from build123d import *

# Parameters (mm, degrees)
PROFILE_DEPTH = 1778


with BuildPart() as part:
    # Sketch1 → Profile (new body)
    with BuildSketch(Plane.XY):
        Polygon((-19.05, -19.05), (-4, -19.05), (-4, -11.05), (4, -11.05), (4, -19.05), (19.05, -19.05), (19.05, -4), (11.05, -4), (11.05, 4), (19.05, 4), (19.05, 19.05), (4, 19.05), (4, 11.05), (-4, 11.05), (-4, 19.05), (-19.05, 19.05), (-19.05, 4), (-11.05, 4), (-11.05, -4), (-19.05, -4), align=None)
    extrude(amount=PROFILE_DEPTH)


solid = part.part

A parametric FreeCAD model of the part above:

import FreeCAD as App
import Part
import Sketcher

V = App.Vector

doc = App.newDocument("Part")
params = doc.addObject("Spreadsheet::Sheet", "Params")
for row, (alias, value) in enumerate([
    ("sketch1_width", "8 mm"),
    ("sketch1_width2", "15.05 mm"),
    ("pad1_length", "1778 mm"),
], start=1):
    params.set(f"A{row}", alias)
    params.set(f"B{row}", "=" + value)
    params.setAlias(f"B{row}", alias)

body = doc.addObject("PartDesign::Body", "Body")

sketch1 = body.newObject("Sketcher::SketchObject", "Sketch")
sketch1.AttachmentSupport = (doc.getObject("XY_Plane"), [""])
sketch1.MapMode = "FlatFace"
sketch1.addGeometry([
    Part.LineSegment(V(-19.05, -19.05, 0), V(-4, -19.05, 0)),
    Part.LineSegment(V(-4, -19.05, 0), V(-4, -11.05, 0)),
    Part.LineSegment(V(-4, -11.05, 0), V(4, -11.05, 0)),
    Part.LineSegment(V(4, -11.05, 0), V(4, -19.05, 0)),
    Part.LineSegment(V(4, -19.05, 0), V(19.05, -19.05, 0)),
    Part.LineSegment(V(19.05, -19.05, 0), V(19.05, -4, 0)),
    Part.LineSegment(V(19.05, -4, 0), V(11.05, -4, 0)),
    Part.LineSegment(V(11.05, -4, 0), V(11.05, 4, 0)),
    Part.LineSegment(V(11.05, 4, 0), V(19.05, 4, 0)),
    Part.LineSegment(V(19.05, 4, 0), V(19.05, 19.05, 0)),
    Part.LineSegment(V(19.05, 19.05, 0), V(4, 19.05, 0)),
    Part.LineSegment(V(4, 19.05, 0), V(4, 11.05, 0)),
    Part.LineSegment(V(4, 11.05, 0), V(-4, 11.05, 0)),
    Part.LineSegment(V(-4, 11.05, 0), V(-4, 19.05, 0)),
    Part.LineSegment(V(-4, 19.05, 0), V(-19.05, 19.05, 0)),
    Part.LineSegment(V(-19.05, 19.05, 0), V(-19.05, 4, 0)),
    Part.LineSegment(V(-19.05, 4, 0), V(-11.05, 4, 0)),
    Part.LineSegment(V(-11.05, 4, 0), V(-11.05, -4, 0)),
    Part.LineSegment(V(-11.05, -4, 0), V(-19.05, -4, 0)),
    Part.LineSegment(V(-19.05, -4, 0), V(-19.05, -19.05, 0)),
], False)
sketch1.addConstraint([
    Sketcher.Constraint("Coincident", 0, 2, 1, 1),
    Sketcher.Constraint("Coincident", 1, 2, 2, 1),
    Sketcher.Constraint("Coincident", 2, 2, 3, 1),
    Sketcher.Constraint("Coincident", 3, 2, 4, 1),
    Sketcher.Constraint("Coincident", 4, 2, 5, 1),
    Sketcher.Constraint("Coincident", 5, 2, 6, 1),
    Sketcher.Constraint("Coincident", 6, 2, 7, 1),
    Sketcher.Constraint("Coincident", 7, 2, 8, 1),
    Sketcher.Constraint("Coincident", 8, 2, 9, 1),
    Sketcher.Constraint("Coincident", 9, 2, 10, 1),
    Sketcher.Constraint("Coincident", 10, 2, 11, 1),
    Sketcher.Constraint("Coincident", 11, 2, 12, 1),
    Sketcher.Constraint("Coincident", 12, 2, 13, 1),
    Sketcher.Constraint("Coincident", 13, 2, 14, 1),
    Sketcher.Constraint("Coincident", 14, 2, 15, 1),
    Sketcher.Constraint("Coincident", 15, 2, 16, 1),
    Sketcher.Constraint("Coincident", 16, 2, 17, 1),
    Sketcher.Constraint("Coincident", 17, 2, 18, 1),
    Sketcher.Constraint("Coincident", 18, 2, 19, 1),
    Sketcher.Constraint("Coincident", 19, 2, 0, 1),
    Sketcher.Constraint("Horizontal", 0),
    Sketcher.Constraint("Vertical", 1),
    Sketcher.Constraint("Horizontal", 2),
    Sketcher.Constraint("Vertical", 3),
    Sketcher.Constraint("Horizontal", 4),
    Sketcher.Constraint("Vertical", 5),
    Sketcher.Constraint("Horizontal", 6),
    Sketcher.Constraint("Vertical", 7),
    Sketcher.Constraint("Horizontal", 8),
    Sketcher.Constraint("Vertical", 9),
    Sketcher.Constraint("Horizontal", 10),
    Sketcher.Constraint("Vertical", 11),
    Sketcher.Constraint("Horizontal", 12),
    Sketcher.Constraint("Vertical", 13),
    Sketcher.Constraint("Horizontal", 14),
    Sketcher.Constraint("Vertical", 15),
    Sketcher.Constraint("Horizontal", 16),
    Sketcher.Constraint("Vertical", 17),
    Sketcher.Constraint("Horizontal", 18),
    Sketcher.Constraint("Vertical", 19),
    Sketcher.Constraint("Symmetric", 0, 2, 10, 2, -1, 1),
    Sketcher.Constraint("Symmetric", 2, 2, 12, 2, -1, 1),
    Sketcher.Constraint("Symmetric", 4, 2, 14, 2, -1, 1),
    Sketcher.Constraint("Symmetric", 6, 2, 16, 2, -1, 1),
    Sketcher.Constraint("Symmetric", 8, 2, 18, 2, -1, 1),
    Sketcher.Constraint("Symmetric", 0, 2, 3, 2, -2),
    Sketcher.Constraint("Symmetric", 8, 2, 15, 2, -2),
    Sketcher.Constraint("Equal", 2, 6),
    Sketcher.Constraint("Equal", 18, 1),
    Sketcher.Constraint("Equal", 14, 5),
    Sketcher.Constraint("Equal", 3, 7),
    Sketcher.Constraint("DistanceX", 2, 1, 2, 2, 8.0),
    Sketcher.Constraint("DistanceX", 0, 1, 0, 2, 15.05),
])
sketch1.setExpression("Constraints[51]", "Params.sketch1_width")
sketch1.setExpression("Constraints[52]", "Params.sketch1_width2")
pad1 = body.newObject("PartDesign::Pad", "Pad")
pad1.Profile = sketch1
pad1.setExpression("Length", "Params.pad1_length")

doc.recompute()
